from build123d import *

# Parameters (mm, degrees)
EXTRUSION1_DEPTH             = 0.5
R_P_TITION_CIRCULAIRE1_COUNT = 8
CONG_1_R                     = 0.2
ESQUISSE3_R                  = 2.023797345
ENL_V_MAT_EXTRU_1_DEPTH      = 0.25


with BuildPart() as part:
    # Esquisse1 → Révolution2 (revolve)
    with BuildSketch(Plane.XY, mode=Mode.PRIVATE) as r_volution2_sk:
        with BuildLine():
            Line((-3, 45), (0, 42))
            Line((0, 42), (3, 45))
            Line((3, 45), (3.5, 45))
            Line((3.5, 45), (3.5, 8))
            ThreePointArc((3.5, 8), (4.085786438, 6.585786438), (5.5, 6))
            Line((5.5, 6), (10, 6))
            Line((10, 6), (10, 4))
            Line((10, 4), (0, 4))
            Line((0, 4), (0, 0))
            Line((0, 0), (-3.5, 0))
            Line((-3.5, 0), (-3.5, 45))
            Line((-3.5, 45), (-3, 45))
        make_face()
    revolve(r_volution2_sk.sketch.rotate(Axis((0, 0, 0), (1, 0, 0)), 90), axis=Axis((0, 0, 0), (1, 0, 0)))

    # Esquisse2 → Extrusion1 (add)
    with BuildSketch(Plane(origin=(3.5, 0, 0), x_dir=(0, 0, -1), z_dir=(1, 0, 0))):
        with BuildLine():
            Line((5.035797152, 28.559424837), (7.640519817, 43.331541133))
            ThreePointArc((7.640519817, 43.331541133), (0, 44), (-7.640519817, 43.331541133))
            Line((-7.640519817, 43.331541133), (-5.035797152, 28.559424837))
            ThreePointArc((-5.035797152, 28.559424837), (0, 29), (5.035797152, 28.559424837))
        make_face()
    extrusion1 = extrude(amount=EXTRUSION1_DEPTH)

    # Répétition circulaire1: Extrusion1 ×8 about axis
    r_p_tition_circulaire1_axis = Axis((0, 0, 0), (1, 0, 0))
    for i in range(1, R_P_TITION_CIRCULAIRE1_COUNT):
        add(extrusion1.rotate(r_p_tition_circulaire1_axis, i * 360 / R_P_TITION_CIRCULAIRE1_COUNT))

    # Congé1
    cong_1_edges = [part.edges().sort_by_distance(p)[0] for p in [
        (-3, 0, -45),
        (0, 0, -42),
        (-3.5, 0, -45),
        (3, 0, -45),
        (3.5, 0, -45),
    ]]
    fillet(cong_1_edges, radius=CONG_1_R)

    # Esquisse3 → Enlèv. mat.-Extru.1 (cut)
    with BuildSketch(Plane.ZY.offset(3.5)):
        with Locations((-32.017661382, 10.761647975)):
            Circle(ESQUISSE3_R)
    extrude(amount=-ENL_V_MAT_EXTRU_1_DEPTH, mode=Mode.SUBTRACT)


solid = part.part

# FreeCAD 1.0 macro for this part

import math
import FreeCAD as App
import Part
import Sketcher

V = App.Vector
Q = App.Units.Quantity


def edges_at(feature, points):
    """Names of the edges that pass closest to the given points."""
    edges = feature.Shape.Edges
    near = lambda p: min(range(len(edges)), key=lambda i: edges[i].distToShape(Part.Vertex(*p))[0])
    return sorted({f"Edge{near(p) + 1}" for p in points})

doc = App.newDocument("Part")
params = doc.addObject("Spreadsheet::Sheet", "Params")
for row, (alias, value) in enumerate([
    ("sketch1_radius", "2 mm"),
    ("sketch1_width", "10 mm"),
    ("sketch1_height", "45 mm"),
    ("sketch1_height2", "4 mm"),
    ("sketch1_height3", "2 mm"),
    ("revolution_angle", "360 deg"),
    ("sketch2_radius", "44 mm"),
    ("sketch2_radius2", "29 mm"),
    ("pad1_length", "0.5 mm"),
    ("fillet_radius", "0.2 mm"),
    ("pocket1_length", "0.25 mm"),
], start=1):
    params.set(f"A{row}", alias)
    params.set(f"B{row}", "=" + value)
    params.setAlias(f"B{row}", alias)

body = doc.addObject("PartDesign::Body", "Body")

sketch1 = body.newObject("Sketcher::SketchObject", "Sketch")
sketch1.AttachmentSupport = (doc.getObject("XY_Plane"), [""])
sketch1.MapMode = "FlatFace"
sketch1.addGeometry(Part.LineSegment(V(0, 42, 0), V(-3, 45, 0)), False)
sketch1.addGeometry(Part.LineSegment(V(-3, 45, 0), V(-3.5, 45, 0)), False)
sketch1.addGeometry(Part.LineSegment(V(-3.5, 45, 0), V(-3.5, 0, 0)), False)
sketch1.addGeometry(Part.LineSegment(V(-3.5, 0, 0), V(0, 0, 0)), False)
sketch1.addGeometry(Part.LineSegment(V(0, 0, 0), V(0, 4, 0)), False)
sketch1.addGeometry(Part.LineSegment(V(0, 4, 0), V(10, 4, 0)), False)
sketch1.addGeometry(Part.LineSegment(V(10, 4, 0), V(10, 6, 0)), False)
sketch1.addGeometry(Part.LineSegment(V(10, 6, 0), V(5.5, 6, 0)), False)
sketch1.addGeometry(Part.ArcOfCircle(Part.Circle(V(5.5, 8, 0), V(0, 0, 1), 2), math.radians(-180), math.radians(-90)), False)
sketch1.addGeometry(Part.LineSegment(V(3.5, 8, 0), V(3.5, 45, 0)), False)
sketch1.addGeometry(Part.LineSegment(V(3.5, 45, 0), V(3, 45, 0)), False)
sketch1.addGeometry(Part.LineSegment(V(3, 45, 0), V(0, 42, 0)), False)
sketch1.addConstraint(Sketcher.Constraint("Coincident", 0, 2, 1, 1))
sketch1.addConstraint(Sketcher.Constraint("Coincident", 1, 2, 2, 1))
sketch1.addConstraint(Sketcher.Constraint("Coincident", 2, 2, 3, 1))
sketch1.addConstraint(Sketcher.Constraint("Coincident", 3, 2, 4, 1))
sketch1.addConstraint(Sketcher.Constraint("Coincident", 4, 2, 5, 1))
sketch1.addConstraint(Sketcher.Constraint("Coincident", 5, 2, 6, 1))
sketch1.addConstraint(Sketcher.Constraint("Coincident", 6, 2, 7, 1))
sketch1.addConstraint(Sketcher.Constraint("Tangent", 7, 2, 8, 2))
sketch1.addConstraint(Sketcher.Constraint("Tangent", 8, 1, 9, 1))
sketch1.addConstraint(Sketcher.Constraint("Coincident", 9, 2, 10, 1))
sketch1.addConstraint(Sketcher.Constraint("Coincident", 10, 2, 11, 1))
sketch1.addConstraint(Sketcher.Constraint("Coincident", 11, 2, 0, 1))
sketch1.addConstraint(Sketcher.Constraint("Horizontal", 1))
sketch1.addConstraint(Sketcher.Constraint("Vertical", 2))
sketch1.addConstraint(Sketcher.Constraint("Horizontal", 3))
sketch1.addConstraint(Sketcher.Constraint("Vertical", 4))
sketch1.addConstraint(Sketcher.Constraint("Horizontal", 5))
sketch1.addConstraint(Sketcher.Constraint("Vertical", 6))
sketch1.addConstraint(Sketcher.Constraint("Horizontal", 7))
sketch1.addConstraint(Sketcher.Constraint("Vertical", 9))
sketch1.addConstraint(Sketcher.Constraint("Horizontal", 10))
sketch1.addConstraint(Sketcher.Constraint("Coincident", 3, 2, -1, 1))
sketch1.addConstraint(Sketcher.Constraint("Symmetric", 1, 2, 9, 2, -2))
sketch1.addConstraint(Sketcher.Constraint("PointOnObject", 11, 2, -2))
sketch1.addConstraint(Sketcher.Constraint("Perpendicular", 0, 11))
sketch1.addConstraint(Sketcher.Constraint("Equal", 1, 10))
sketch1.addConstraint(Sketcher.Constraint("Radius", 8, 2.0))
sketch1.addConstraint(Sketcher.Constraint("DistanceX", 5, 1, 5, 2, 10.0))
sketch1.addConstraint(Sketcher.Constraint("DistanceY", 2, 2, 2, 1, 45.0))
sketch1.addConstraint(Sketcher.Constraint("DistanceY", 4, 1, 4, 2, 4.0))
sketch1.addConstraint(Sketcher.Constraint("DistanceY", 6, 1, 6, 2, 2.0))
sketch1.addConstraint(Sketcher.Constraint("DistanceX", 1, 2, 1, 1, 0.5))
sketch1.addConstraint(Sketcher.Constraint("DistanceX", 3, 1, 3, 2, 3.5))
sketch1.setExpression("Constraints[26]", "Params.sketch1_radius")
sketch1.setExpression("Constraints[27]", "Params.sketch1_width")
sketch1.setExpression("Constraints[28]", "Params.sketch1_height")
sketch1.setExpression("Constraints[29]", "Params.sketch1_height2")
sketch1.setExpression("Constraints[30]", "Params.sketch1_height3")
revolution = body.newObject("PartDesign::Revolution", "Revolution")
revolution.Profile = sketch1
revolution.ReferenceAxis = (sketch1, ["H_Axis"])
revolution.setExpression("Angle", "Params.revolution_angle")

sketch2 = body.newObject("Sketcher::SketchObject", "Sketch001")
sketch2.AttachmentSupport = (doc.getObject("YZ_Plane"), [""])
sketch2.MapMode = "FlatFace"
sketch2.AttachmentOffset = App.Placement(V(0, 0, 3.5), App.Rotation())
sketch2.addGeometry(Part.LineSegment(V(29, -5, 0), V(43, -8, 0)), False)
sketch2.addGeometry(Part.ArcOfCircle(Part.Circle(V(0, 0, 0), V(0, 0, 1), 44), math.radians(-10), math.radians(10)), False)
sketch2.addGeometry(Part.LineSegment(V(43, 8, 0), V(29, 5, 0)), False)
sketch2.addGeometry(Part.ArcOfCircle(Part.Circle(V(0, 0, 0), V(0, 0, 1), 29), math.radians(-10), math.radians(10)), False)
sketch2.addConstraint(Sketcher.Constraint("Coincident", 0, 2, 1, 1))
sketch2.addConstraint(Sketcher.Constraint("Coincident", 1, 2, 2, 1))
sketch2.addConstraint(Sketcher.Constraint("Coincident", 2, 2, 3, 2))
sketch2.addConstraint(Sketcher.Constraint("Coincident", 3, 1, 0, 1))
sketch2.addConstraint(Sketcher.Constraint("Coincident", 1, 3, -1, 1))
sketch2.addConstraint(Sketcher.Constraint("Coincident", 3, 3, -1, 1))
sketch2.addConstraint(Sketcher.Constraint("Vertical", 0, 2, 1, 2))
sketch2.addConstraint(Sketcher.Constraint("Vertical", 2, 2, 3, 1))
sketch2.addConstraint(Sketcher.Constraint("Radius", 1, 44.0))
sketch2.addConstraint(Sketcher.Constraint("Radius", 3, 29.0))
sketch2.addConstraint(Sketcher.Constraint("Angle", 0, Q("-10 deg")))
sketch2.addConstraint(Sketcher.Constraint("DistanceX", -1, 1, 0, 2, 43.331541))
sketch2.setExpression("Constraints[8]", "Params.sketch2_radius")
sketch2.setExpression("Constraints[9]", "Params.sketch2_radius2")
pad1 = body.newObject("PartDesign::Pad", "Pad")
pad1.Profile = sketch2
pad1.setExpression("Length", "Params.pad1_length")
doc.recompute()

polarpattern = body.newObject("PartDesign::PolarPattern", "PolarPattern")
polarpattern.Originals = [pad1]
polarpattern.Axis = (doc.getObject("X_Axis"), [""])
polarpattern.Angle = 360
polarpattern.Occurrences = 8
body.Tip = polarpattern
doc.recompute()

fillet = body.newObject("PartDesign::Fillet", "Fillet")
fillet.Base = (polarpattern, edges_at(polarpattern, [
    (-3, 0, -45),
    (0, 0, -42),
    (-3.5, 0, -45),
    (3, 0, -45),
    (3.5, 0, -45),
]))
fillet.setExpression("Radius", "Params.fillet_radius")

sketch3 = body.newObject("Sketcher::SketchObject", "Sketch002")
sketch3.AttachmentSupport = (doc.getObject("YZ_Plane"), [""])
sketch3.MapMode = "FlatFace"
sketch3.AttachmentOffset = App.Placement(V(0, 0, -3.5), App.Rotation())
sketch3.addGeometry(Part.Circle(V(10.8, -32, 0), V(0, 0, 1), 2), False)
sketch3.addConstraint(Sketcher.Constraint("Diameter", 0, 4.047595))
sketch3.addConstraint(Sketcher.Constraint("DistanceY", 0, 3, -1, 1, 32.017661))
sketch3.addConstraint(Sketcher.Constraint("DistanceX", -1, 1, 0, 3, 10.761648))
pocket1 = body.newObject("PartDesign::Pocket", "Pocket")
pocket1.Profile = sketch3
pocket1.setExpression("Length", "Params.pocket1_length")
pocket1.Reversed = True

doc.recompute()
